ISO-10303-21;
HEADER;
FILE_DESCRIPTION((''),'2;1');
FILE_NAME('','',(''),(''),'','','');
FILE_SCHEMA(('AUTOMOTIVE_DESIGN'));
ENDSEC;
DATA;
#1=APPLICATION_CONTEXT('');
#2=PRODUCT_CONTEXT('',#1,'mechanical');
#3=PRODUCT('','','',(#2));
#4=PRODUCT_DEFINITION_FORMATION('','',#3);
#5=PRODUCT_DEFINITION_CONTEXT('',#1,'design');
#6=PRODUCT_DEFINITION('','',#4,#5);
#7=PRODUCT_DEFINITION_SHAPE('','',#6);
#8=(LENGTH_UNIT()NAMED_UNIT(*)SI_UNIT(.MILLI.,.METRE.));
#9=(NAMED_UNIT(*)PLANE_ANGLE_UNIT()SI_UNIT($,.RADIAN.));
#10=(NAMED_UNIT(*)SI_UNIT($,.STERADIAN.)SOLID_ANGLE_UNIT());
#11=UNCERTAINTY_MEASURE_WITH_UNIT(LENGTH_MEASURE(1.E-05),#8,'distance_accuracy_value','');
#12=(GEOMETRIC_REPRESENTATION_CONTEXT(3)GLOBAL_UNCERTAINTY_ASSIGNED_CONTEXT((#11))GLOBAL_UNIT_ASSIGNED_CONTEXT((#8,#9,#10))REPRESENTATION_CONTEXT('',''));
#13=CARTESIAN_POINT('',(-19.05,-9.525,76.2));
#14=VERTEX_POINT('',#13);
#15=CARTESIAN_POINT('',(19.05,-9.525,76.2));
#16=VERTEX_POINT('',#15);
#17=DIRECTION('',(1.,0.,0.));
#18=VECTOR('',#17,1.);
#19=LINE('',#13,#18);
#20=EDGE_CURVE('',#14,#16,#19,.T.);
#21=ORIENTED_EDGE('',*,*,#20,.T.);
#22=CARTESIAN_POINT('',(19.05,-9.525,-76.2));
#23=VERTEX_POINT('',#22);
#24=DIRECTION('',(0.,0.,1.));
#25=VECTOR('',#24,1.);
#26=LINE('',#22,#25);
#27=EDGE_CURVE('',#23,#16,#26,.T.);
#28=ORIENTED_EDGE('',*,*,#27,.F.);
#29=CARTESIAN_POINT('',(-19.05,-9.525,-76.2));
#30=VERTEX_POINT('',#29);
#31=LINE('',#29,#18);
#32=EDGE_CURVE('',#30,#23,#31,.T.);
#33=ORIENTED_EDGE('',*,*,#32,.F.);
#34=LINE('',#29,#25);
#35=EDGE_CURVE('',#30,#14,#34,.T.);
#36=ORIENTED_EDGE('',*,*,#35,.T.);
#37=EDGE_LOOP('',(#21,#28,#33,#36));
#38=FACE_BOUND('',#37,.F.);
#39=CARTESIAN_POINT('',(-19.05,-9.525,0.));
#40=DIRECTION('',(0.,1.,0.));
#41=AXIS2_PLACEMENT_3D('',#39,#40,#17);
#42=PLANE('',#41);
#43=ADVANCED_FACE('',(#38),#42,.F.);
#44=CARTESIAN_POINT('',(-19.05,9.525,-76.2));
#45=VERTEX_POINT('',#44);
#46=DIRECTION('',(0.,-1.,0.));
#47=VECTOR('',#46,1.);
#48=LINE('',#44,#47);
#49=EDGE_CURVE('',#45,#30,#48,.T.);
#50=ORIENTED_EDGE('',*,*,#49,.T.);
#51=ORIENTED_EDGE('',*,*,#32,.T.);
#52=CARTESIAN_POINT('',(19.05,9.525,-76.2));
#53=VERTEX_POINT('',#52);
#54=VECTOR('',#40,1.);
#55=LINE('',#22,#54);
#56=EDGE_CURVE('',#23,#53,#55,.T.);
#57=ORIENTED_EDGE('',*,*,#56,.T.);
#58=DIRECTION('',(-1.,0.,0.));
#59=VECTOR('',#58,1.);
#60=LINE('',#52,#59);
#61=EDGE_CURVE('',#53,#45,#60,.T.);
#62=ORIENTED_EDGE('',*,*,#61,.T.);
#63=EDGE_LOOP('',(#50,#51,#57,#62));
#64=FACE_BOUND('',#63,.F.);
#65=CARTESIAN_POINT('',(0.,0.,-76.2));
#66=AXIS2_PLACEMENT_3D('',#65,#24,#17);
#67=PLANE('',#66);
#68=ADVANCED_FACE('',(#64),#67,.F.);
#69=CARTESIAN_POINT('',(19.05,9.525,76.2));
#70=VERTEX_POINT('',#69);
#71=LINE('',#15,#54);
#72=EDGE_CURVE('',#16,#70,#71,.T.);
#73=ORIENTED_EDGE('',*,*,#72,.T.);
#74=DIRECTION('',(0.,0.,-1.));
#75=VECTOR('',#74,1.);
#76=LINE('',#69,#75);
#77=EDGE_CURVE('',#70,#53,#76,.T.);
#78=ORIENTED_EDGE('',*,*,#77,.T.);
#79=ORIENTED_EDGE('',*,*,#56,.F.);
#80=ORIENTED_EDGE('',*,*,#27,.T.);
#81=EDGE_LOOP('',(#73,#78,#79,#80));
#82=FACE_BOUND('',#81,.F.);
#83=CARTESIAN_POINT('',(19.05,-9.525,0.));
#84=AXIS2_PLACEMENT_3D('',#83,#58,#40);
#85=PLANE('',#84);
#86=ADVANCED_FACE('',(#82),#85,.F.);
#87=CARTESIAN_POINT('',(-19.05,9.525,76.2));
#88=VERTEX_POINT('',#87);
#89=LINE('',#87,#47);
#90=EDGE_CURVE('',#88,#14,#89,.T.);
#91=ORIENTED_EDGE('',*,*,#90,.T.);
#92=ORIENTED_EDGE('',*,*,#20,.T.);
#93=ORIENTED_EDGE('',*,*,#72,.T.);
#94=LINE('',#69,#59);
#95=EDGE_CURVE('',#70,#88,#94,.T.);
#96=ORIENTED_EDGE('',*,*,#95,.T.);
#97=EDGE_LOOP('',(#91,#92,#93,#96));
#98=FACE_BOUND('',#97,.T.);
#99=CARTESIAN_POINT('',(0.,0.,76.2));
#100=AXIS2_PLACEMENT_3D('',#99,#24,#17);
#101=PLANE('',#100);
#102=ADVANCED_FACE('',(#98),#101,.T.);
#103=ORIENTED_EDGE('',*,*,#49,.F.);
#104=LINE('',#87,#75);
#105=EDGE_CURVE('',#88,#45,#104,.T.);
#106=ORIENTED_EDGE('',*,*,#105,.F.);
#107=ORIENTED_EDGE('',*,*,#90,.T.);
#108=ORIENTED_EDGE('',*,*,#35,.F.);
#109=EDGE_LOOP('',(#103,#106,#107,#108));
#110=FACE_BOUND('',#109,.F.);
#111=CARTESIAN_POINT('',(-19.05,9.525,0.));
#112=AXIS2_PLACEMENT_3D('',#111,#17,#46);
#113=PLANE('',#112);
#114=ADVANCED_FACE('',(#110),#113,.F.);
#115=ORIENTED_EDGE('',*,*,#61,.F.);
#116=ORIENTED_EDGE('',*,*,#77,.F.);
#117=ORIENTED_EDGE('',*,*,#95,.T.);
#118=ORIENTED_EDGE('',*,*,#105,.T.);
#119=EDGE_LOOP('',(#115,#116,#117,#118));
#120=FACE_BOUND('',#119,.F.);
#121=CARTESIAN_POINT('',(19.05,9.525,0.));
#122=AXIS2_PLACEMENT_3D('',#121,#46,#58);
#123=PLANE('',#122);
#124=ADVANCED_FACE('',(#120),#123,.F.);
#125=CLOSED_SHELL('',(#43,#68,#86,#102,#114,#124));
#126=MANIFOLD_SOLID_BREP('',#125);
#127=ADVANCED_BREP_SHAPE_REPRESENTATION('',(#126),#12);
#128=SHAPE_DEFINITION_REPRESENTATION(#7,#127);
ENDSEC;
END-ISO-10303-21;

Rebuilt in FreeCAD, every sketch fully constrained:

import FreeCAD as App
import Part
import Sketcher
Q = App.Units.Quantity


def add_polygon(sketch, points):
    """Adds a closed chain of lines whose ends are joined by coincident constraints."""
    first, n = sketch.GeometryCount, len(points)
    for a, b in zip(points, points[1:] + points[:1]):
        sketch.addGeometry(Part.LineSegment(App.Vector(*a, 0), App.Vector(*b, 0)), False)
    for i in range(n):
        sketch.addConstraint(Sketcher.Constraint("Coincident", first + i, 2, first + (i + 1) % n, 1))

doc = App.newDocument("Part")
body = doc.addObject("PartDesign::Body", "Body")

sketch1 = doc.addObject("Sketcher::SketchObject", "Sketch")
body.addObject(sketch1)
sketch1.AttachmentSupport = (doc.XY_Plane, [""])
sketch1.MapMode = "FlatFace"
add_polygon(sketch1, [(-19.05, 9.525), (-19.05, -9.525), (19.05, -9.525), (19.05, 9.525)])
sketch1.addConstraint([
    Sketcher.Constraint("Vertical", 0),
    Sketcher.Constraint("Horizontal", 1),
    Sketcher.Constraint("Vertical", 2),
    Sketcher.Constraint("Horizontal", 3),
    Sketcher.Constraint("Symmetric", 0, 2, 2, 2, -1, 1),
    Sketcher.Constraint("DistanceX", 1, 1, 1, 2, Q("1.5 in")),
    Sketcher.Constraint("DistanceY", 0, 2, 0, 1, Q("0.75 in")),
])
pad1 = doc.addObject("PartDesign::Pad", "Pad")
body.addObject(pad1)
pad1.Profile = sketch1
pad1.Length = Q("6 in")
pad1.Midplane = True

doc.recompute()
